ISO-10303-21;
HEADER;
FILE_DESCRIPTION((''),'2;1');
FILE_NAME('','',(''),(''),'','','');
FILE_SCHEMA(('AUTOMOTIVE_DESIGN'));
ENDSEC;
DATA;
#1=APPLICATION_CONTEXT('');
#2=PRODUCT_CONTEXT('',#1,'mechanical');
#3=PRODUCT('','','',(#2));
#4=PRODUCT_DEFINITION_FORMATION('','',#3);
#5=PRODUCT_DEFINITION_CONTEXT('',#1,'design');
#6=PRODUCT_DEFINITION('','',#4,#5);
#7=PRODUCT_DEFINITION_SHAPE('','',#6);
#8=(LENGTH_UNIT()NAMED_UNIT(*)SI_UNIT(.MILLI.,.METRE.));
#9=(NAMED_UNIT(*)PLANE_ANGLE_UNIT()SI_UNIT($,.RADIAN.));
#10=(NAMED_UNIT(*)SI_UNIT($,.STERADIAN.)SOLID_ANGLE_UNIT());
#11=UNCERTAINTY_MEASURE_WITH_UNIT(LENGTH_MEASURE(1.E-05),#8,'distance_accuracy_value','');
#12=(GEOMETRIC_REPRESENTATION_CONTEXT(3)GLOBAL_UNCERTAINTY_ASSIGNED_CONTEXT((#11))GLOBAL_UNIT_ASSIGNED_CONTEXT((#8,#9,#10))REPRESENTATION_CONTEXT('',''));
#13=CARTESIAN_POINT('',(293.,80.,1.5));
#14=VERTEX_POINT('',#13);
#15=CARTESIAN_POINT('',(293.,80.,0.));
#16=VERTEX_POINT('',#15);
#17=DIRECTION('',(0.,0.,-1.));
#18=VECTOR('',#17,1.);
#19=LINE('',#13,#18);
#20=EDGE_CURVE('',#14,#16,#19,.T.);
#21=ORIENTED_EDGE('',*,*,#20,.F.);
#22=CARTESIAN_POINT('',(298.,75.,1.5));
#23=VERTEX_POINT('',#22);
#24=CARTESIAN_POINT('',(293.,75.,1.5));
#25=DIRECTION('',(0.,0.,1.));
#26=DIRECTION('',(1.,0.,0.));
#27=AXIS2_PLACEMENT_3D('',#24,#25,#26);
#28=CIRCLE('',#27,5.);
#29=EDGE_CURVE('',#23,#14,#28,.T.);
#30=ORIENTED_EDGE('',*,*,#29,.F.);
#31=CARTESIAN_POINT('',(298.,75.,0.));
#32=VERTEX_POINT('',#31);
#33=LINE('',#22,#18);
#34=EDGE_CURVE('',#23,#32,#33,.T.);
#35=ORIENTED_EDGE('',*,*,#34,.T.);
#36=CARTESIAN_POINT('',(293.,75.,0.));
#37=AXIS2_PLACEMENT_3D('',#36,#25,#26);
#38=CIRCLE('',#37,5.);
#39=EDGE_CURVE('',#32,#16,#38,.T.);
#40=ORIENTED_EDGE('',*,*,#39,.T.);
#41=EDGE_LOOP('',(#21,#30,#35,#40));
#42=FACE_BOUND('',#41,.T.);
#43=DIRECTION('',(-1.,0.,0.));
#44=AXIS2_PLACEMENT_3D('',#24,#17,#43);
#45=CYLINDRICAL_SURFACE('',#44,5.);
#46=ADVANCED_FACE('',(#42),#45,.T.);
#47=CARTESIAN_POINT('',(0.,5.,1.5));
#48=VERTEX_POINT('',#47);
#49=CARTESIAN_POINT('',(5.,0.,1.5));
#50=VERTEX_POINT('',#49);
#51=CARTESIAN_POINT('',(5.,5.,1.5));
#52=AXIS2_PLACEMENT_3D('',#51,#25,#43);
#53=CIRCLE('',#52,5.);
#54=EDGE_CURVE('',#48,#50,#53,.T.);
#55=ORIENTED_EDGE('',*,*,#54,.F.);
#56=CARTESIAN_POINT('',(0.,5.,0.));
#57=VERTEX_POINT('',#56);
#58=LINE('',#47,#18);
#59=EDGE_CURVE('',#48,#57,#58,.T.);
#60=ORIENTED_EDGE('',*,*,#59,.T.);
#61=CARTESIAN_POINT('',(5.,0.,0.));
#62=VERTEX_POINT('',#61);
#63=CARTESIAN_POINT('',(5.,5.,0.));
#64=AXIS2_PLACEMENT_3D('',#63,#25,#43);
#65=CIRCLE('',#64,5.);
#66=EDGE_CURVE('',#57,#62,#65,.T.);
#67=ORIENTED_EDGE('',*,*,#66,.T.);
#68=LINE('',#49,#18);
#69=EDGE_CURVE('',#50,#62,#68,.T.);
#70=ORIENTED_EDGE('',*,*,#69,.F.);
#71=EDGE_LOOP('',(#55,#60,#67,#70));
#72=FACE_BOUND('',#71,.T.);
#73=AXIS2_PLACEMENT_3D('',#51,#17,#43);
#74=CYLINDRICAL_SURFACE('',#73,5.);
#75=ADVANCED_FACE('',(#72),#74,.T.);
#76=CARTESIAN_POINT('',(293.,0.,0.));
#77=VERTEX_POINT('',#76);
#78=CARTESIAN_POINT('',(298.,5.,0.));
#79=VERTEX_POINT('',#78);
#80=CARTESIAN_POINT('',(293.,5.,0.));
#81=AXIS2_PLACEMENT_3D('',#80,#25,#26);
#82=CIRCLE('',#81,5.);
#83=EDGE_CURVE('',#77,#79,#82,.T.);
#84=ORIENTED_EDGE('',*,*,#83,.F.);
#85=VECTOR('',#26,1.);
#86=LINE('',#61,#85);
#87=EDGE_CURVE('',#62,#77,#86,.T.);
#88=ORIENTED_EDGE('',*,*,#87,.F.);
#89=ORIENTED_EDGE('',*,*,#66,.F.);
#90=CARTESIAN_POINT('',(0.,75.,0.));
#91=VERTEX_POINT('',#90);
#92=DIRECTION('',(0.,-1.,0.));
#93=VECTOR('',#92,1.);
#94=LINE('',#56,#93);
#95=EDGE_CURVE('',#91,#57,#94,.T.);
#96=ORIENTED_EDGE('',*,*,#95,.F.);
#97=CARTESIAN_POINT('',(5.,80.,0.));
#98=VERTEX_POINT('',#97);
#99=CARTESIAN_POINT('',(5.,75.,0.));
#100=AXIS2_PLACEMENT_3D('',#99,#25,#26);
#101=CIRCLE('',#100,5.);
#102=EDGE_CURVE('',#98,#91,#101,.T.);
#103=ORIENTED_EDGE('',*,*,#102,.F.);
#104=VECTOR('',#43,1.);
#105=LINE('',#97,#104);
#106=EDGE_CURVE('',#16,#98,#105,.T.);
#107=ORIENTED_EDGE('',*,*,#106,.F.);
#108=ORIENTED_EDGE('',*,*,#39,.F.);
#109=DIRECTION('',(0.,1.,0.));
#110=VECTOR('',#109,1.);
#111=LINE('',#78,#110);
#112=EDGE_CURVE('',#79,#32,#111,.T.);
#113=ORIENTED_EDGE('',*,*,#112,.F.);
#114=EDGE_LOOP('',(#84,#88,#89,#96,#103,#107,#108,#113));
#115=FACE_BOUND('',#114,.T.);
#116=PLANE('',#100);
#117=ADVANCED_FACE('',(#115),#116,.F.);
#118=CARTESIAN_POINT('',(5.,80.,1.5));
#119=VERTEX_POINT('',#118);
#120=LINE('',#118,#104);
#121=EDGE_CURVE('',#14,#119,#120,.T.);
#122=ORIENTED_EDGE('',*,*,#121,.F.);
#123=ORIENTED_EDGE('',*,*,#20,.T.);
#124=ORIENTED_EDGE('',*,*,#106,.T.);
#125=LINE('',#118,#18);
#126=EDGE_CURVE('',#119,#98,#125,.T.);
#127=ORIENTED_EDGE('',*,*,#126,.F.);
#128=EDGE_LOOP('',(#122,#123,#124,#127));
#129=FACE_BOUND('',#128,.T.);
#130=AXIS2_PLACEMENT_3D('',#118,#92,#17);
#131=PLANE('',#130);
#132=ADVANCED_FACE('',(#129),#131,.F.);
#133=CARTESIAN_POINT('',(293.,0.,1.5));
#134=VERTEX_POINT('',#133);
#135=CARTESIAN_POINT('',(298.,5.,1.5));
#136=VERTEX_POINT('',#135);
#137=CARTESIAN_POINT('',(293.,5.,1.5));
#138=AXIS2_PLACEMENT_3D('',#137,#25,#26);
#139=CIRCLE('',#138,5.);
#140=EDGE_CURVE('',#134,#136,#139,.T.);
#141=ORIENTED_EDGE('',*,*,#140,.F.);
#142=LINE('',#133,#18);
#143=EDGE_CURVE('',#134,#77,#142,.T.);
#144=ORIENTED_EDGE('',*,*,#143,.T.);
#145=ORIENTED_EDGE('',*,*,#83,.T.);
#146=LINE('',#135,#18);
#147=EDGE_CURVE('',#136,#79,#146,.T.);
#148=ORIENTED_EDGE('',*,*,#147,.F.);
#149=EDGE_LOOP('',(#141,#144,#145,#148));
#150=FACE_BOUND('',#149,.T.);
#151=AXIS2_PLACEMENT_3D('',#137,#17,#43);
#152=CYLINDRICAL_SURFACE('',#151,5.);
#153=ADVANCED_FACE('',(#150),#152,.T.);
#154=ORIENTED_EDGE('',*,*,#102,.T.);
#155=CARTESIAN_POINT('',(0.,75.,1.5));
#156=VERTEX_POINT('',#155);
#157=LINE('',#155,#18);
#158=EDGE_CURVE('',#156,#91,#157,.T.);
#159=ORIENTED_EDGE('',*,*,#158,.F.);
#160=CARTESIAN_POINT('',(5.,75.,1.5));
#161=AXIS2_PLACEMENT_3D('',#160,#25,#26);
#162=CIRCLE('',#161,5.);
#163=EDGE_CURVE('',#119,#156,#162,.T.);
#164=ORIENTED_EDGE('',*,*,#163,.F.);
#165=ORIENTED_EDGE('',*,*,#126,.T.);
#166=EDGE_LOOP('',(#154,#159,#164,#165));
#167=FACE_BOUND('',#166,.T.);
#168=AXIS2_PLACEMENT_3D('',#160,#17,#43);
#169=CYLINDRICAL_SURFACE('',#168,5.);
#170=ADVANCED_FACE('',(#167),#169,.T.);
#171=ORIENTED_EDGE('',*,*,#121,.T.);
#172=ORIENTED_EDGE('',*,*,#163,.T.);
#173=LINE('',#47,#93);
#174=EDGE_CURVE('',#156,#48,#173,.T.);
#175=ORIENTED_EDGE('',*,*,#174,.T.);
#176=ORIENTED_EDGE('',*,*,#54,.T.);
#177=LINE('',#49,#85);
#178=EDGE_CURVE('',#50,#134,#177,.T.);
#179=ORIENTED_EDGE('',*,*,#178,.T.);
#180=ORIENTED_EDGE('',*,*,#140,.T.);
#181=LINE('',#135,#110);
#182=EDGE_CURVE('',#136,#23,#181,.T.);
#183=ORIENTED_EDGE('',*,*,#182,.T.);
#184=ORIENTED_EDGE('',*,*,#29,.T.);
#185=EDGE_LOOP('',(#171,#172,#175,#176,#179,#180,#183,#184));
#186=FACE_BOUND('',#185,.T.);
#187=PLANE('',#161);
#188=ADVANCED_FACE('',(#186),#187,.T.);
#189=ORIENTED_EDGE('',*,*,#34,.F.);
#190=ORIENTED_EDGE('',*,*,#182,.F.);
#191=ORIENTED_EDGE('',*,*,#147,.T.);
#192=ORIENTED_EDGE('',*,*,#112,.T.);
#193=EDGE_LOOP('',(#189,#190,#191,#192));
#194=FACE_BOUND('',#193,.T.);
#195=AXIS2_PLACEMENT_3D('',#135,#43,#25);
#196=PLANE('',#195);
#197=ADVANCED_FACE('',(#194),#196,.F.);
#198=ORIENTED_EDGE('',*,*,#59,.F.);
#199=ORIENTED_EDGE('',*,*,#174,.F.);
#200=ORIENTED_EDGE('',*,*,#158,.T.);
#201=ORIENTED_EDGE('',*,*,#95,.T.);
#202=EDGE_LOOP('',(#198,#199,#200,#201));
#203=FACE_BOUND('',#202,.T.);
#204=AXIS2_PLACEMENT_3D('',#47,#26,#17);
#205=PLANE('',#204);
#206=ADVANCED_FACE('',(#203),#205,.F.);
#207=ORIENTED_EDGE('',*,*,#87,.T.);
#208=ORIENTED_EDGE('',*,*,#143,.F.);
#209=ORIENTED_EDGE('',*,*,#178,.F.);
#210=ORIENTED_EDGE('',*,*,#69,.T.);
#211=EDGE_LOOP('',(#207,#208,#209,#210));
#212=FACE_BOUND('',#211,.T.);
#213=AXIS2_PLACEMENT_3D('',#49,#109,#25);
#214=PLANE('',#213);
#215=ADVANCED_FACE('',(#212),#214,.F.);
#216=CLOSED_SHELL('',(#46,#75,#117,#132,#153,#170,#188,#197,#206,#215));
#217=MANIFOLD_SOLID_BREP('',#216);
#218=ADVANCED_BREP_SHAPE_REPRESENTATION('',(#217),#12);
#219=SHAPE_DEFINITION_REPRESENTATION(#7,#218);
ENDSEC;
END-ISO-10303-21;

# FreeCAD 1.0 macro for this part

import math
import FreeCAD as App
import Part
import Sketcher
from FreeCAD import Vector

doc = App.newDocument("Part")
params = doc.addObject("Spreadsheet::Sheet", "Params")
for row, (alias, value) in enumerate([
    ("sketch1_radius", "5 mm"),
    ("sketch1_width", "288 mm"),
    ("sketch1_height", "70 mm"),
    ("pad1_length", "1.5 mm"),
], start=1):
    params.set(f"A{row}", alias)
    params.set(f"B{row}", "=" + value)
    params.setAlias(f"B{row}", alias)

body = doc.addObject("PartDesign::Body", "Body")

sketch1 = body.newObject("Sketcher::SketchObject", "Sketch")
sketch1.AttachmentSupport = (doc.getObject("XY_Plane"), [""])
sketch1.MapMode = "FlatFace"
sketch1.addGeometry([
    Part.LineSegment(Vector(5, 0, 0), Vector(293, 0, 0)),
    Part.ArcOfCircle(Part.Circle(Vector(293, 5, 0), Vector(0, 0, 1), 5), math.radians(-90), math.radians(0)),
    Part.LineSegment(Vector(298, 5, 0), Vector(298, 75, 0)),
    Part.ArcOfCircle(Part.Circle(Vector(293, 75, 0), Vector(0, 0, 1), 5), math.radians(0), math.radians(90)),
    Part.LineSegment(Vector(293, 80, 0), Vector(5, 80, 0)),
    Part.ArcOfCircle(Part.Circle(Vector(5, 75, 0), Vector(0, 0, 1), 5), math.radians(90), math.radians(180)),
    Part.LineSegment(Vector(0, 75, 0), Vector(0, 5, 0)),
    Part.ArcOfCircle(Part.Circle(Vector(5, 5, 0), Vector(0, 0, 1), 5), math.radians(180), math.radians(270)),
], False)
sketch1.addConstraint([
    Sketcher.Constraint("Tangent", 0, 2, 1, 1),
    Sketcher.Constraint("Tangent", 1, 2, 2, 1),
    Sketcher.Constraint("Tangent", 2, 2, 3, 1),
    Sketcher.Constraint("Tangent", 3, 2, 4, 1),
    Sketcher.Constraint("Tangent", 4, 2, 5, 1),
    Sketcher.Constraint("Tangent", 5, 2, 6, 1),
    Sketcher.Constraint("Tangent", 6, 2, 7, 1),
    Sketcher.Constraint("Tangent", 7, 2, 0, 1),
    Sketcher.Constraint("Horizontal", 0),
    Sketcher.Constraint("Vertical", 2),
    Sketcher.Constraint("Horizontal", 4),
    Sketcher.Constraint("Vertical", 6),
    Sketcher.Constraint("Equal", 1, 3),
    Sketcher.Constraint("Equal", 3, 5),
    Sketcher.Constraint("Equal", 5, 7),
    Sketcher.Constraint("PointOnObject", 0, 2, -1),
    Sketcher.Constraint("PointOnObject", 5, 2, -2),
    Sketcher.Constraint("Radius", 1, 5.0),
    Sketcher.Constraint("DistanceX", 0, 1, 0, 2, 288.0),
    Sketcher.Constraint("DistanceY", 2, 1, 2, 2, 70.0),
])
sketch1.setExpression("Constraints[17]", "Params.sketch1_radius")
sketch1.setExpression("Constraints[18]", "Params.sketch1_width")
sketch1.setExpression("Constraints[19]", "Params.sketch1_height")
pad1 = body.newObject("PartDesign::Pad", "Pad")
pad1.Profile = sketch1
pad1.setExpression("Length", "Params.pad1_length")

doc.recompute()
